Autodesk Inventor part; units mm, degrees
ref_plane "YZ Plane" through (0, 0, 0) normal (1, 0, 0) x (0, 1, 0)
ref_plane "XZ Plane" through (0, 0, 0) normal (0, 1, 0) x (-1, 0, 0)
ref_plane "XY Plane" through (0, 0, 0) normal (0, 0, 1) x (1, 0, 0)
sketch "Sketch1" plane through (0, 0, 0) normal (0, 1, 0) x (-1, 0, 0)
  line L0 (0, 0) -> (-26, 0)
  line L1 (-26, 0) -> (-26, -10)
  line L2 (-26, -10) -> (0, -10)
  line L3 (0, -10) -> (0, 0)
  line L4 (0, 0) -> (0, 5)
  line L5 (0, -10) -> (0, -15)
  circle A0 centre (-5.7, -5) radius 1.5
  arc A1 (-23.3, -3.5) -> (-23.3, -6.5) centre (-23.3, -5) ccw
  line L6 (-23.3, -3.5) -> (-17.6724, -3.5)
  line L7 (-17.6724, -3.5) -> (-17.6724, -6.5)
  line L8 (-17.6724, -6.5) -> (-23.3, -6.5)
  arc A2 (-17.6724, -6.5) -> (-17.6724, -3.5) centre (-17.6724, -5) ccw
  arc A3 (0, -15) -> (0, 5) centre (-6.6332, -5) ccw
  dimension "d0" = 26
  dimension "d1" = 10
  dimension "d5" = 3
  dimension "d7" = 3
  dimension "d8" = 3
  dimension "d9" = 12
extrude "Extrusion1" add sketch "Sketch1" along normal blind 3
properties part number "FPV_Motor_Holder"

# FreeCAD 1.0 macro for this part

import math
import FreeCAD as App
import Part
import Sketcher
from FreeCAD import Vector
Q = App.Units.Quantity

doc = App.newDocument("Part")
params = doc.addObject("Spreadsheet::Sheet", "Params")
for row, (alias, value) in enumerate([
    ("sketch1_diameter", "3 mm"),
    ("sketch1_radius", "12 mm"),
    ("sketch1_width", "26 mm"),
    ("sketch1_height", "10 mm"),
    ("pad1_length", "3 mm"),
], start=1):
    params.set(f"A{row}", alias)
    params.set(f"B{row}", "=" + value)
    params.setAlias(f"B{row}", alias)

body = doc.addObject("PartDesign::Body", "Body")

# Sketch on XZ plane
sketch1 = body.newObject("Sketcher::SketchObject", "Sketch")
sketch1.AttachmentSupport = (doc.getObject("XZ_Plane"), [""])
sketch1.MapMode = "FlatFace"
sketch1.addGeometry([
    Part.LineSegment(Vector(26, -10, 0), Vector(0, -10, 0)),  # 0
    Part.LineSegment(Vector(0, -10, 0), Vector(0, -15, 0)),  # 1
    Part.ArcOfCircle(Part.Circle(Vector(6.6, -5, 0), Vector(0, 0, 1), 12), math.radians(124), math.radians(236)),  # 2
    Part.LineSegment(Vector(0, 5, 0), Vector(0, 0, 0)),  # 3
    Part.LineSegment(Vector(0, 0, 0), Vector(26, 0, 0)),  # 4
    Part.LineSegment(Vector(26, 0, 0), Vector(26, -10, 0)),  # 5
    Part.ArcOfCircle(Part.Circle(Vector(23.3, -5, 0), Vector(0, 0, 1), 1.5), math.radians(-90), math.radians(90)),  # 6
    Part.LineSegment(Vector(23.3, -3.5, 0), Vector(17.7, -3.5, 0)),  # 7
    Part.ArcOfCircle(Part.Circle(Vector(17.7, -5, 0), Vector(0, 0, 1), 1.5), math.radians(90), math.radians(270)),  # 8
    Part.LineSegment(Vector(17.7, -6.5, 0), Vector(23.3, -6.5, 0)),  # 9
    Part.Circle(Vector(5.7, -5, 0), Vector(0, 0, 1), 1.5),  # 10
], False)
sketch1.addConstraint([
    Sketcher.Constraint("Coincident", 0, 2, 1, 1),
    Sketcher.Constraint("Coincident", 1, 2, 2, 2),
    Sketcher.Constraint("Coincident", 2, 1, 3, 1),
    Sketcher.Constraint("Coincident", 3, 2, 4, 1),
    Sketcher.Constraint("Coincident", 4, 2, 5, 1),
    Sketcher.Constraint("Coincident", 5, 2, 0, 1),
    Sketcher.Constraint("Tangent", 6, 2, 7, 1),
    Sketcher.Constraint("Tangent", 7, 2, 8, 1),
    Sketcher.Constraint("Tangent", 8, 2, 9, 1),
    Sketcher.Constraint("Tangent", 9, 2, 6, 1),
    Sketcher.Constraint("Horizontal", 0),
    Sketcher.Constraint("Vertical", 1),
    Sketcher.Constraint("Vertical", 3),
    Sketcher.Constraint("Horizontal", 4),
    Sketcher.Constraint("Vertical", 5),
    Sketcher.Constraint("Horizontal", 7),
    Sketcher.Constraint("Horizontal", 9),
    Sketcher.Constraint("Coincident", 3, 2, -1, 1),
    Sketcher.Constraint("Equal", 8, 10),
    Sketcher.Constraint("PointOnObject", 0, 2, -2),
    Sketcher.Constraint("Horizontal", 2, 3, 6, 3),
    Sketcher.Constraint("Horizontal", 8, 3, 10, 3),
    Sketcher.Constraint("Equal", 1, 3),
    Sketcher.Constraint("Diameter", 10, Q("3 mm")),
    Sketcher.Constraint("Radius", 2, Q("12 mm")),
    Sketcher.Constraint("DistanceX", 0, 2, 0, 1, Q("26 mm")),
    Sketcher.Constraint("DistanceY", 5, 2, 5, 1, Q("10 mm")),
    Sketcher.Constraint("DistanceY", 1, 2, 10, 3, Q("10 mm")),
    Sketcher.Constraint("DistanceX", -1, 1, 6, 3, Q("23.3 mm")),
    Sketcher.Constraint("DistanceX", -1, 1, 10, 3, Q("5.7 mm")),
    Sketcher.Constraint("DistanceX", 7, 2, 7, 1, Q("5.6276 mm")),
])
sketch1.setExpression("Constraints[23]", "Params.sketch1_diameter")
sketch1.setExpression("Constraints[24]", "Params.sketch1_radius")
sketch1.setExpression("Constraints[25]", "Params.sketch1_width")
sketch1.setExpression("Constraints[26]", "Params.sketch1_height")
pad1 = body.newObject("PartDesign::Pad", "Pad")
pad1.Profile = sketch1
pad1.setExpression("Length", "Params.pad1_length")
pad1.Reversed = True

doc.recompute()
